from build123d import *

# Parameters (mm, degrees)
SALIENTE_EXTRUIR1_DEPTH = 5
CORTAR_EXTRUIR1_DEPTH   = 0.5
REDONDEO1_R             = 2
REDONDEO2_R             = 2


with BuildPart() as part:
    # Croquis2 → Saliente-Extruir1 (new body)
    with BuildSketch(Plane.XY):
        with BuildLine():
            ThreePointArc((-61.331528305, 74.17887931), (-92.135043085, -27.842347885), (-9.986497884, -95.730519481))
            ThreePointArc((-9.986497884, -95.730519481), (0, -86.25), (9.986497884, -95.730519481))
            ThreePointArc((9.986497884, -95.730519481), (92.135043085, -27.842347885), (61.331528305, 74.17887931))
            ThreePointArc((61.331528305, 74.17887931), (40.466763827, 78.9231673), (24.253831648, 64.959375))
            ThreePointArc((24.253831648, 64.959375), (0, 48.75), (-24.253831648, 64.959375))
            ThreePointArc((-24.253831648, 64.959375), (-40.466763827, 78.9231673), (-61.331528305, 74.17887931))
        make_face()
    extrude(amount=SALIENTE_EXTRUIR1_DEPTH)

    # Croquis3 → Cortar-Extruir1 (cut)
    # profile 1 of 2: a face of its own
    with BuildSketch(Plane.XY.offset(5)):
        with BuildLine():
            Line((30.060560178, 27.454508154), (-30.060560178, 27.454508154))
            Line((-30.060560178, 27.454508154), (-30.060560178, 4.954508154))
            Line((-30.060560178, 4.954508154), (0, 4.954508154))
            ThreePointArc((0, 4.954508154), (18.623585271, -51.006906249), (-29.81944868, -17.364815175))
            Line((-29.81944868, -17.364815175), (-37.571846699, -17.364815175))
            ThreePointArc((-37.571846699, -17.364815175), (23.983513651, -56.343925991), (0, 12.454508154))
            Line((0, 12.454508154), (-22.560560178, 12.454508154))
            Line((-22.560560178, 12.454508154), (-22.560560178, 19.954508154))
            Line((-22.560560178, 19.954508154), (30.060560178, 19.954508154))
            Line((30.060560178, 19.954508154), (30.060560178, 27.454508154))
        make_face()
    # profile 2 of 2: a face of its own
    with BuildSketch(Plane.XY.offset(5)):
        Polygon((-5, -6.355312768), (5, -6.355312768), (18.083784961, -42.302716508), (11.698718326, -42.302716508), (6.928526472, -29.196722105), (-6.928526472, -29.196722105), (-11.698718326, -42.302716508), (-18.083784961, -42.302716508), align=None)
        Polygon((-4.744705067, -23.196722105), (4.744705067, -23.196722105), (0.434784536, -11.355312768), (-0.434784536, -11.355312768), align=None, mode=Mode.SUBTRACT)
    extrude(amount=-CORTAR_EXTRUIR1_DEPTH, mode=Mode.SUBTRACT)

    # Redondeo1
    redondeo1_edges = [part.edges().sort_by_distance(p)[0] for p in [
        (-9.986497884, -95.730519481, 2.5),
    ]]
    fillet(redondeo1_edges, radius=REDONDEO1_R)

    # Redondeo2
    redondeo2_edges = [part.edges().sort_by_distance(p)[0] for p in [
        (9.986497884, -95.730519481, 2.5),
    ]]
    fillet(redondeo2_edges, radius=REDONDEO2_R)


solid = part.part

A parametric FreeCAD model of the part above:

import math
import FreeCAD as App
import Part
import Sketcher
from FreeCAD import Vector
Q = App.Units.Quantity


def edges_at(feature, points):
    """Names of the edges that pass closest to the given points."""
    edges = feature.Shape.Edges
    near = lambda p: min(range(len(edges)), key=lambda i: edges[i].distToShape(Part.Vertex(*p))[0])
    return sorted({f"Edge{near(p) + 1}" for p in points})


def add_polygon(sketch, points):
    """Adds a closed chain of lines whose ends are joined by coincident constraints."""
    first, n = sketch.GeometryCount, len(points)
    for a, b in zip(points, points[1:] + points[:1]):
        sketch.addGeometry(Part.LineSegment(App.Vector(*a, 0), App.Vector(*b, 0)), False)
    for i in range(n):
        sketch.addConstraint(Sketcher.Constraint("Coincident", first + i, 2, first + (i + 1) % n, 1))

doc = App.newDocument("Part")
params = doc.addObject("Spreadsheet::Sheet", "Params")
for row, (alias, value) in enumerate([
    ("sketch1_radius", "10 mm"),
    ("sketch1_radius2", "96.25 mm"),
    ("sketch1_radius3", "23.75 mm"),
    ("sketch1_radius4", "26.25 mm"),
    ("pad1_length", "5 mm"),
    ("sketch2_width", "10 mm"),
    ("sketch2_height", "22.5 mm"),
    ("sketch2_height2", "7.5 mm"),
    ("pocket1_length", "0.5 mm"),
    ("fillet_radius", "2 mm"),
    ("fillet2_radius", "2 mm"),
], start=1):
    params.set(f"A{row}", alias)
    params.set(f"B{row}", "=" + value)
    params.setAlias(f"B{row}", alias)

body = doc.addObject("PartDesign::Body", "Body")

sketch1 = body.newObject("Sketcher::SketchObject", "Sketch")
sketch1.AttachmentSupport = (doc.getObject("XY_Plane"), [""])
sketch1.MapMode = "FlatFace"
sketch1.addGeometry([
    Part.ArcOfCircle(Part.Circle(Vector(0, 0, 0), Vector(0, 0, 1), 96.25), math.radians(129.58414), math.radians(264.044511)),
    Part.ArcOfCircle(Part.Circle(Vector(0, -96.25, 0), Vector(0, 0, 1), 10), math.radians(2.977744), math.radians(177.022256)),
    Part.ArcOfCircle(Part.Circle(Vector(0, 0, 0), Vector(0, 0, 1), 96.25), math.radians(-84.044511), math.radians(50.41586)),
    Part.ArcOfCircle(Part.Circle(Vector(46.197775, 55.875, 0), Vector(0, 0, 1), 23.75), math.radians(50.41586), math.radians(157.511375)),
    Part.ArcOfCircle(Part.Circle(Vector(0, 75, 0), Vector(0, 0, 1), 26.25), math.radians(-157.511375), math.radians(-22.488625)),
    Part.ArcOfCircle(Part.Circle(Vector(-46.197775, 55.875, 0), Vector(0, 0, 1), 23.75), math.radians(22.488625), math.radians(129.58414)),
], False)
sketch1.addConstraint([
    Sketcher.Constraint("Coincident", 0, 2, 1, 2),
    Sketcher.Constraint("Coincident", 1, 1, 2, 1),
    Sketcher.Constraint("Tangent", 2, 2, 3, 1),
    Sketcher.Constraint("Tangent", 3, 2, 4, 2),
    Sketcher.Constraint("Tangent", 4, 1, 5, 1),
    Sketcher.Constraint("Tangent", 5, 2, 0, 1),
    Sketcher.Constraint("Coincident", 0, 3, -1, 1),
    Sketcher.Constraint("Coincident", 2, 3, -1, 1),
    Sketcher.Constraint("Equal", 0, 2),
    Sketcher.Constraint("Equal", 3, 5),
    Sketcher.Constraint("PointOnObject", 1, 3, -2),
    Sketcher.Constraint("PointOnObject", 4, 3, -2),
    Sketcher.Constraint("Radius", 1, Q("10 mm")),
    Sketcher.Constraint("Radius", 0, Q("96.25 mm")),
    Sketcher.Constraint("Radius", 3, Q("23.75 mm")),
    Sketcher.Constraint("Radius", 4, Q("26.25 mm")),
    Sketcher.Constraint("DistanceY", -1, 1, 4, 3, Q("75 mm")),
    Sketcher.Constraint("DistanceY", 1, 3, -1, 1, Q("96.25 mm")),
])
sketch1.setExpression("Constraints[12]", "Params.sketch1_radius")
sketch1.setExpression("Constraints[13]", "Params.sketch1_radius2")
sketch1.setExpression("Constraints[14]", "Params.sketch1_radius3")
sketch1.setExpression("Constraints[15]", "Params.sketch1_radius4")
pad1 = body.newObject("PartDesign::Pad", "Pad")
pad1.Profile = sketch1
pad1.setExpression("Length", "Params.pad1_length")

sketch2 = body.newObject("Sketcher::SketchObject", "Sketch001")
sketch2.AttachmentSupport = (doc.getObject("XY_Plane"), [""])
sketch2.MapMode = "FlatFace"
sketch2.AttachmentOffset = App.Placement(Vector(0, 0, 5), App.Rotation())
sketch2.addGeometry(Part.LineSegment(Vector(30.06056, 27.454508, 0), Vector(-30.06056, 27.454508, 0)), False)
sketch2.addGeometry(Part.LineSegment(Vector(-30.06056, 27.454508, 0), Vector(-30.06056, 4.954508, 0)), False)
sketch2.addGeometry(Part.LineSegment(Vector(-30.06056, 4.954508, 0), Vector(0, 4.954508, 0)), False)
sketch2.addGeometry(Part.ArcOfCircle(Part.Circle(Vector(0, -26.125101, 0), Vector(0, 0, 1), 31.07961), math.radians(163.628393), math.radians(450)), False)
sketch2.addGeometry(Part.LineSegment(Vector(-29.819449, -17.364815, 0), Vector(-37.571847, -17.364815, 0)), False)
sketch2.addGeometry(Part.ArcOfCircle(Part.Circle(Vector(0, -26.125101, 0), Vector(0, 0, 1), 38.57961), math.radians(166.875347), math.radians(450)), False)
sketch2.addGeometry(Part.LineSegment(Vector(0, 12.454508, 0), Vector(-22.56056, 12.454508, 0)), False)
sketch2.addGeometry(Part.LineSegment(Vector(-22.56056, 12.454508, 0), Vector(-22.56056, 19.954508, 0)), False)
sketch2.addGeometry(Part.LineSegment(Vector(-22.56056, 19.954508, 0), Vector(30.06056, 19.954508, 0)), False)
sketch2.addGeometry(Part.LineSegment(Vector(30.06056, 19.954508, 0), Vector(30.06056, 27.454508, 0)), False)
add_polygon(sketch2, [(5, -6.355313), (-5, -6.355313), (-18.083785, -42.302717), (-11.698718, -42.302717), (-6.928526, -29.196722), (6.928526, -29.196722), (11.698718, -42.302717), (18.083785, -42.302717)])
add_polygon(sketch2, [(-4.744705, -23.196722), (-0.434785, -11.355313), (0.434785, -11.355313), (4.744705, -23.196722)])
sketch2.addConstraint([
    Sketcher.Constraint("Coincident", 0, 2, 1, 1),
    Sketcher.Constraint("Coincident", 1, 2, 2, 1),
    Sketcher.Constraint("Tangent", 2, 2, 3, 2),
    Sketcher.Constraint("Coincident", 3, 1, 4, 1),
    Sketcher.Constraint("Coincident", 4, 2, 5, 1),
    Sketcher.Constraint("Tangent", 5, 2, 6, 1),
    Sketcher.Constraint("Coincident", 6, 2, 7, 1),
    Sketcher.Constraint("Coincident", 7, 2, 8, 1),
    Sketcher.Constraint("Coincident", 8, 2, 9, 1),
    Sketcher.Constraint("Coincident", 9, 2, 0, 1),
    Sketcher.Constraint("Horizontal", 0),
    Sketcher.Constraint("Vertical", 1),
    Sketcher.Constraint("Horizontal", 2),
    Sketcher.Constraint("Horizontal", 4),
    Sketcher.Constraint("Horizontal", 6),
    Sketcher.Constraint("Vertical", 7),
    Sketcher.Constraint("Horizontal", 8),
    Sketcher.Constraint("Vertical", 9),
    Sketcher.Constraint("Horizontal", 10),
    Sketcher.Constraint("Horizontal", 12),
    Sketcher.Constraint("Horizontal", 14),
    Sketcher.Constraint("Horizontal", 16),
    Sketcher.Constraint("Horizontal", 19),
    Sketcher.Constraint("Horizontal", 21),
    Sketcher.Constraint("Coincident", 5, 3, 3, 3),
    Sketcher.Constraint("Symmetric", 12, 2, 15, 2, -2),
    Sketcher.Constraint("PointOnObject", 3, 3, -2),
    Sketcher.Constraint("Parallel", 11, 13),
    Sketcher.Constraint("Parallel", 15, 17),
    Sketcher.Constraint("Parallel", 13, 18),
    Sketcher.Constraint("Parallel", 17, 20),
    Sketcher.Constraint("Equal", 12, 16),
    Sketcher.Constraint("Equal", 7, 9),
    Sketcher.Constraint("Equal", 13, 15),
    Sketcher.Constraint("DistanceX", 10, 2, 10, 1, Q("10 mm")),
    Sketcher.Constraint("Angle", 11, Q("-110 deg")),
    Sketcher.Constraint("DistanceY", 1, 2, 1, 1, Q("22.5 mm")),
    Sketcher.Constraint("DistanceY", 7, 1, 7, 2, Q("7.5 mm")),
    Sketcher.Constraint("DistanceY", 18, 2, 10, 2, Q("5 mm")),
    Sketcher.Constraint("DistanceY", 14, 2, 20, 2, Q("6 mm")),
    Sketcher.Constraint("DistanceX", 1, 2, 6, 2, Q("7.5 mm")),
    Sketcher.Constraint("Radius", 3, Q("31.07961 mm")),
    Sketcher.Constraint("DistanceX", 4, 2, 4, 1, Q("7.752398 mm")),
    Sketcher.Constraint("DistanceX", 0, 2, 0, 1, Q("60.12112 mm")),
    Sketcher.Constraint("DistanceX", 2, 1, 2, 2, Q("30.06056 mm")),
    Sketcher.Constraint("DistanceX", 19, 1, 19, 2, Q("0.869569 mm")),
    Sketcher.Constraint("DistanceX", 21, 2, 21, 1, Q("9.48941 mm")),
    Sketcher.Constraint("DistanceY", 3, 3, -1, 1, Q("26.125101 mm")),
    Sketcher.Constraint("DistanceY", 11, 2, 3, 1, Q("24.937901 mm")),
    Sketcher.Constraint("Distance", 11, Q("38.254428 mm")),
    Sketcher.Constraint("DistanceX", 12, 1, 12, 2, Q("6.385067 mm")),
    Sketcher.Constraint("DistanceX", 20, 2, 14, 2, Q("2.183821 mm")),
])
sketch2.setExpression("Constraints[46]", "Params.sketch2_width")
sketch2.setExpression("Constraints[48]", "Params.sketch2_height")
sketch2.setExpression("Constraints[49]", "Params.sketch2_height2")
pocket1 = body.newObject("PartDesign::Pocket", "Pocket")
pocket1.Profile = sketch2
pocket1.setExpression("Length", "Params.pocket1_length")
doc.recompute()

fillet = body.newObject("PartDesign::Fillet", "Fillet")
fillet.Base = (pocket1, edges_at(pocket1, [(-9.986, -95.731, 2.5)]))
fillet.setExpression("Radius", "Params.fillet_radius")
doc.recompute()

fillet2 = body.newObject("PartDesign::Fillet", "Fillet001")
fillet2.Base = (fillet, edges_at(fillet, [(9.986, -95.731, 2.5)]))
fillet2.setExpression("Radius", "Params.fillet2_radius")

doc.recompute()
